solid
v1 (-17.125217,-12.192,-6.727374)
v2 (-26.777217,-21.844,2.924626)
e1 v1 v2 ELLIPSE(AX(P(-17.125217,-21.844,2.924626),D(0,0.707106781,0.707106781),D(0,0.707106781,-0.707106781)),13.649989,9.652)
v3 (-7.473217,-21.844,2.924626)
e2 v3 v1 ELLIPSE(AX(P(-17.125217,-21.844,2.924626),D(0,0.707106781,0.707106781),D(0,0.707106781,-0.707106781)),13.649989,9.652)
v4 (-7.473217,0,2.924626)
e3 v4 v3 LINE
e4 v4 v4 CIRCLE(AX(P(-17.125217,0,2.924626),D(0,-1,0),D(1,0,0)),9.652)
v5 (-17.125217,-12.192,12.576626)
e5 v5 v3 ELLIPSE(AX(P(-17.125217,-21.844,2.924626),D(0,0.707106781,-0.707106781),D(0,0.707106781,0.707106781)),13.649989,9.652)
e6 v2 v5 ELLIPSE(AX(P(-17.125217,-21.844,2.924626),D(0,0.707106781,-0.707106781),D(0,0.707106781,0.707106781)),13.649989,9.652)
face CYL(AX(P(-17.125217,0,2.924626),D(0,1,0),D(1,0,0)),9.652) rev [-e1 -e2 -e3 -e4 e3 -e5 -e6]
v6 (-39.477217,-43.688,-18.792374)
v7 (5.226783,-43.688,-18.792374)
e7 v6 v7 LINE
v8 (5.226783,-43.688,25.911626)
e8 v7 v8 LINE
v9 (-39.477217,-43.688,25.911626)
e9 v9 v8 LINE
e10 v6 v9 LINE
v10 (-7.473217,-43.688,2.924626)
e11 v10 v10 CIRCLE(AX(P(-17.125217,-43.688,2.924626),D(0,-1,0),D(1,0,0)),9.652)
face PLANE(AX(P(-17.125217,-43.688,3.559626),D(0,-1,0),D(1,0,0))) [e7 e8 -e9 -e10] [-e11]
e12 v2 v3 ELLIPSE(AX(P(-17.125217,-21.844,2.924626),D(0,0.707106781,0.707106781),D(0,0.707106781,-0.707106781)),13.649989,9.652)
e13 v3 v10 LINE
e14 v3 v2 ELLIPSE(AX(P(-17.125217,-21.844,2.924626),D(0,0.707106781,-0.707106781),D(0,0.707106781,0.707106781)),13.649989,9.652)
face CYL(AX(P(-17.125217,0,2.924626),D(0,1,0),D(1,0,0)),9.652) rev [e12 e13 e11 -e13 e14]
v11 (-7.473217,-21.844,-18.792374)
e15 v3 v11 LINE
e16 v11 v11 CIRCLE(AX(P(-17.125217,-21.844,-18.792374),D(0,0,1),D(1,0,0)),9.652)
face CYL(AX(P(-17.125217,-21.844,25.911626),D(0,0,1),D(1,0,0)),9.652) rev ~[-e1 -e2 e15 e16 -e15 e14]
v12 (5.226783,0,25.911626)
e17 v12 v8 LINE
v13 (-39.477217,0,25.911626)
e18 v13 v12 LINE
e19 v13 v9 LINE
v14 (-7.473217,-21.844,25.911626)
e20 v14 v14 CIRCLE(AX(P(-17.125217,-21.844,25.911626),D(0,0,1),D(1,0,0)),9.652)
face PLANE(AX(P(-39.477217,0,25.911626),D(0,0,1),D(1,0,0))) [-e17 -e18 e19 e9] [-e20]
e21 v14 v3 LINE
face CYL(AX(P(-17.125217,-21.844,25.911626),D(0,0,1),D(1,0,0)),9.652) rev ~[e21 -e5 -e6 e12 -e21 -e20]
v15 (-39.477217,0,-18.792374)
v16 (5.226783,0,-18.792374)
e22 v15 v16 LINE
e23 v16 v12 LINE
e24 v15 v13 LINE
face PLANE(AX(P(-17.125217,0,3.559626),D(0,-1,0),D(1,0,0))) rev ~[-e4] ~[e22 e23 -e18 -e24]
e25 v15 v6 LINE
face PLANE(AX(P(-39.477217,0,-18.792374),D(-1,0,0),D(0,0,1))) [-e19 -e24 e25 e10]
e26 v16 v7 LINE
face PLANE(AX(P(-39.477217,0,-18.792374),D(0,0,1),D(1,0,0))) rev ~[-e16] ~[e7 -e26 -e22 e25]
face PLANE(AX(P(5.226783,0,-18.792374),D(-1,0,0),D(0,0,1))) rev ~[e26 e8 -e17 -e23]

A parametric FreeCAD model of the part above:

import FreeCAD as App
import Part
import Sketcher

V = App.Vector
Q = App.Units.Quantity


def add_polygon(sketch, points):
    """Adds a closed chain of lines whose ends are joined by coincident constraints."""
    first, n = sketch.GeometryCount, len(points)
    for a, b in zip(points, points[1:] + points[:1]):
        sketch.addGeometry(Part.LineSegment(App.Vector(*a, 0), App.Vector(*b, 0)), False)
    for i in range(n):
        sketch.addConstraint(Sketcher.Constraint("Coincident", first + i, 2, first + (i + 1) % n, 1))

doc = App.newDocument("Part")
body = doc.addObject("PartDesign::Body", "Body")

# Sketch on XZ plane
sketch1 = doc.addObject("Sketcher::SketchObject", "Sketch")
body.addObject(sketch1)
sketch1.AttachmentSupport = (doc.XZ_Plane, [""])
sketch1.MapMode = "FlatFace"
add_polygon(sketch1, [(-39.477217, 25.911626), (-39.477217, -18.792374), (5.226783, -18.792374), (5.226783, 25.911626)])  # lines 0-3
sketch1.addGeometry(Part.Circle(V(-17.125217, 2.924626, 0), V(0, 0, 1), 9.652), False)  # 4
sketch1.addConstraint([
    Sketcher.Constraint("Vertical", 0),
    Sketcher.Constraint("Horizontal", 1),
    Sketcher.Constraint("Vertical", 2),
    Sketcher.Constraint("Horizontal", 3),
    Sketcher.Constraint("Equal", 3, 0),
    Sketcher.Constraint("Diameter", 4, Q("0.76 in")),
    Sketcher.Constraint("DistanceX", 1, 1, 1, 2, Q("1.76 in")),
    Sketcher.Constraint("DistanceX", 0, 2, 4, 3, Q("0.88 in")),
    Sketcher.Constraint("DistanceY", 0, 2, 4, 3, Q("0.855 in")),
    Sketcher.Constraint("DistanceX", 4, 3, -1, 1, 17.125217),
    Sketcher.Constraint("DistanceY", -1, 1, 4, 3, 2.924626),
])
pad1 = doc.addObject("PartDesign::Pad", "Pad")
body.addObject(pad1)
pad1.Profile = sketch1
pad1.Length = Q("1.72 in")

# Sketch on XY plane
sketch2 = doc.addObject("Sketcher::SketchObject", "Sketch001")
body.addObject(sketch2)
sketch2.AttachmentSupport = (doc.XY_Plane, [""])
sketch2.MapMode = "FlatFace"
sketch2.AttachmentOffset = App.Placement(V(0, 0, 25.911626), App.Rotation())
sketch2.addGeometry(Part.Circle(V(-17.125217, -21.844, 0), V(0, 0, 1), 9.652), False)
sketch2.addConstraint([
    Sketcher.Constraint("Diameter", 0, Q("0.76 in")),
    Sketcher.Constraint("DistanceY", 0, 3, -1, 1, Q("0.86 in")),
    Sketcher.Constraint("DistanceX", 0, 3, -1, 1, 17.125217),
])
pocket1 = doc.addObject("PartDesign::Pocket", "Pocket")
body.addObject(pocket1)
pocket1.Profile = sketch2
pocket1.Type = "ThroughAll"

doc.recompute()
